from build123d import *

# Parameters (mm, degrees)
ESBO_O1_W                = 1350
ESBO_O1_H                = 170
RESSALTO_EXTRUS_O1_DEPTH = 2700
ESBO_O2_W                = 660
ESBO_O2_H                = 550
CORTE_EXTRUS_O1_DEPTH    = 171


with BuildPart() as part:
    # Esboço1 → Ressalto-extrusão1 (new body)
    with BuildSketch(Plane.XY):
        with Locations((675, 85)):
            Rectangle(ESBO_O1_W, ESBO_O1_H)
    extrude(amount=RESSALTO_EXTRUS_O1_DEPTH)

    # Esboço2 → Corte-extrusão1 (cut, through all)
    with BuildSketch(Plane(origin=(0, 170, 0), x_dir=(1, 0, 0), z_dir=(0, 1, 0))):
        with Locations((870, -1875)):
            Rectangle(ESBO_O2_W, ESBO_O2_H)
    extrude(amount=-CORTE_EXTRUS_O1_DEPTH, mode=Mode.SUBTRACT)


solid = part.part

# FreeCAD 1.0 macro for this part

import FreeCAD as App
import Part
import Sketcher

V = App.Vector
Q = App.Units.Quantity

doc = App.newDocument("Part")
body = doc.addObject("PartDesign::Body", "Body")

# Sketch on XY plane
sketch1 = body.newObject("Sketcher::SketchObject", "Sketch")
sketch1.AttachmentSupport = (doc.getObject("XY_Plane"), [""])
sketch1.MapMode = "FlatFace"
sketch1.addGeometry(Part.LineSegment(V(0, 170, 0), V(0, 0, 0)), False)
sketch1.addGeometry(Part.LineSegment(V(0, 0, 0), V(1350, 0, 0)), False)
sketch1.addGeometry(Part.LineSegment(V(1350, 0, 0), V(1350, 170, 0)), False)
sketch1.addGeometry(Part.LineSegment(V(1350, 170, 0), V(0, 170, 0)), False)
sketch1.addConstraint(Sketcher.Constraint("Coincident", 0, 2, 1, 1))
sketch1.addConstraint(Sketcher.Constraint("Coincident", 1, 2, 2, 1))
sketch1.addConstraint(Sketcher.Constraint("Coincident", 2, 2, 3, 1))
sketch1.addConstraint(Sketcher.Constraint("Coincident", 3, 2, 0, 1))
sketch1.addConstraint(Sketcher.Constraint("Vertical", 0))
sketch1.addConstraint(Sketcher.Constraint("Horizontal", 1))
sketch1.addConstraint(Sketcher.Constraint("Vertical", 2))
sketch1.addConstraint(Sketcher.Constraint("Horizontal", 3))
sketch1.addConstraint(Sketcher.Constraint("Coincident", 0, 2, -1, 1))
sketch1.addConstraint(Sketcher.Constraint("DistanceX", 1, 1, 1, 2, Q("1350 mm")))
sketch1.addConstraint(Sketcher.Constraint("DistanceY", 0, 2, 0, 1, Q("170 mm")))
pad1 = body.newObject("PartDesign::Pad", "Pad")
pad1.Profile = sketch1
pad1.Length = 2700

# Sketch on XZ plane
sketch2 = body.newObject("Sketcher::SketchObject", "Sketch001")
sketch2.AttachmentSupport = (doc.getObject("XZ_Plane"), [""])
sketch2.MapMode = "FlatFace"
sketch2.AttachmentOffset = App.Placement(V(0, 0, -170), App.Rotation())
sketch2.addGeometry(Part.LineSegment(V(540, 1600, 0), V(540, 2150, 0)), False)
sketch2.addGeometry(Part.LineSegment(V(540, 2150, 0), V(1200, 2150, 0)), False)
sketch2.addGeometry(Part.LineSegment(V(1200, 2150, 0), V(1200, 1600, 0)), False)
sketch2.addGeometry(Part.LineSegment(V(1200, 1600, 0), V(540, 1600, 0)), False)
sketch2.addConstraint(Sketcher.Constraint("Coincident", 0, 2, 1, 1))
sketch2.addConstraint(Sketcher.Constraint("Coincident", 1, 2, 2, 1))
sketch2.addConstraint(Sketcher.Constraint("Coincident", 2, 2, 3, 1))
sketch2.addConstraint(Sketcher.Constraint("Coincident", 3, 2, 0, 1))
sketch2.addConstraint(Sketcher.Constraint("Vertical", 0))
sketch2.addConstraint(Sketcher.Constraint("Horizontal", 1))
sketch2.addConstraint(Sketcher.Constraint("Vertical", 2))
sketch2.addConstraint(Sketcher.Constraint("Horizontal", 3))
sketch2.addConstraint(Sketcher.Constraint("DistanceX", 1, 1, 1, 2, Q("660 mm")))
sketch2.addConstraint(Sketcher.Constraint("DistanceY", 0, 1, 0, 2, Q("550 mm")))
sketch2.addConstraint(Sketcher.Constraint("DistanceX", -1, 1, 0, 2, Q("540 mm")))
sketch2.addConstraint(Sketcher.Constraint("DistanceY", -1, 1, 0, 2, Q("2150 mm")))
pocket1 = body.newObject("PartDesign::Pocket", "Pocket")
pocket1.Profile = sketch2
pocket1.Type = "ThroughAll"
pocket1.Reversed = True

doc.recompute()
